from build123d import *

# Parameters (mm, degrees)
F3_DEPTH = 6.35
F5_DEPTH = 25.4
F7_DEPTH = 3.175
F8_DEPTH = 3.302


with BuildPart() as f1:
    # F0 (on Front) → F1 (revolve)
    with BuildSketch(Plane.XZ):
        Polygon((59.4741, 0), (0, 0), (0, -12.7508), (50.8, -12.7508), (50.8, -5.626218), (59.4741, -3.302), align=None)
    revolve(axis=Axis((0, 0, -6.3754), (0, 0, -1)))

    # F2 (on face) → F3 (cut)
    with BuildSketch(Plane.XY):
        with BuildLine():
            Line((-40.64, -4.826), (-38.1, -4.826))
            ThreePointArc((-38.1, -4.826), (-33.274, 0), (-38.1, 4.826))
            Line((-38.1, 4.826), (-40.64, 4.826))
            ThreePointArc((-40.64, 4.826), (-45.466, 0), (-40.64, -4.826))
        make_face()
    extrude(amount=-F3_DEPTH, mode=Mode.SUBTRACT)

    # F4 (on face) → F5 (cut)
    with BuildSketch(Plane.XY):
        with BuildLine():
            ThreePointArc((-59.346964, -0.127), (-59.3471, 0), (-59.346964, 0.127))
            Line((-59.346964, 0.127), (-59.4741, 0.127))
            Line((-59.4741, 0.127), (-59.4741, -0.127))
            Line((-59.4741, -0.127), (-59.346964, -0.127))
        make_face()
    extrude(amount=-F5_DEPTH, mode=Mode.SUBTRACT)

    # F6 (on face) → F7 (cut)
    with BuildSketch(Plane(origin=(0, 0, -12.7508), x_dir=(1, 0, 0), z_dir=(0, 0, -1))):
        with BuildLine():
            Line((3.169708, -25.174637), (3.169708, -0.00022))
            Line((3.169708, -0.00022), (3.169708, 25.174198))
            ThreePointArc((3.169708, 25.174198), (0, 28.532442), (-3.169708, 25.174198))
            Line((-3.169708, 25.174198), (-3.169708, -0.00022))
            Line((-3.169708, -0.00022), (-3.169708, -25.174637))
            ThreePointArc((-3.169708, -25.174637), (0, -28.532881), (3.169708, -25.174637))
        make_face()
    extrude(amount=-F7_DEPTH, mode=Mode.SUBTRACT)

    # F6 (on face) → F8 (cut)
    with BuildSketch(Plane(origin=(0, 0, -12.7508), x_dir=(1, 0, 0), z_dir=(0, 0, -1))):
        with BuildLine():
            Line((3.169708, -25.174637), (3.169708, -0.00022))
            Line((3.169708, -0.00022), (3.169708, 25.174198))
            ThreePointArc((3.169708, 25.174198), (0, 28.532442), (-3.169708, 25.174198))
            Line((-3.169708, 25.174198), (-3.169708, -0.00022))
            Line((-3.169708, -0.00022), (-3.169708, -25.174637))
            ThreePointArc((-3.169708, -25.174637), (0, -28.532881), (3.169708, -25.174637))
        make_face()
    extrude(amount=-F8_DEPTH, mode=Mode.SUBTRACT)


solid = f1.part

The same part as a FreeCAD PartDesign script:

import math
import FreeCAD as App
import Part
import Sketcher

V = App.Vector
Q = App.Units.Quantity

doc = App.newDocument("Part")
body = doc.addObject("PartDesign::Body", "Body")

# Sketch on XZ plane
sketch1 = body.newObject("Sketcher::SketchObject", "Sketch")
sketch1.AttachmentSupport = (doc.getObject("XZ_Plane"), [""])
sketch1.MapMode = "FlatFace"
sketch1.addGeometry([
    Part.LineSegment(V(59.5, 0, 0), V(0, 0, 0)),  # 0
    Part.LineSegment(V(0, 0, 0), V(0, -12.8, 0)),  # 1
    Part.LineSegment(V(0, -12.8, 0), V(50.8, -12.8, 0)),  # 2
    Part.LineSegment(V(50.8, -12.8, 0), V(50.8, -5.6, 0)),  # 3
    Part.LineSegment(V(50.8, -5.6, 0), V(59.5, -3.3, 0)),  # 4
    Part.LineSegment(V(59.5, -3.3, 0), V(59.5, 0, 0)),  # 5
], False)
sketch1.addConstraint([
    Sketcher.Constraint("Coincident", 0, 2, 1, 1),
    Sketcher.Constraint("Coincident", 1, 2, 2, 1),
    Sketcher.Constraint("Coincident", 2, 2, 3, 1),
    Sketcher.Constraint("Coincident", 3, 2, 4, 1),
    Sketcher.Constraint("Coincident", 4, 2, 5, 1),
    Sketcher.Constraint("Coincident", 5, 2, 0, 1),
    Sketcher.Constraint("Horizontal", 0),
    Sketcher.Constraint("Vertical", 1),
    Sketcher.Constraint("Horizontal", 2),
    Sketcher.Constraint("Vertical", 3),
    Sketcher.Constraint("Vertical", 5),
    Sketcher.Constraint("Coincident", 0, 2, -1, 1),
    Sketcher.Constraint("DistanceX", 2, 1, 2, 2, Q("2 in")),
    Sketcher.Constraint("Angle", 4, Q("14.999999 deg")),
    Sketcher.Constraint("DistanceY", 5, 1, 5, 2, Q("0.13 in")),
    Sketcher.Constraint("DistanceY", 1, 2, 1, 1, Q("0.502 in")),
    Sketcher.Constraint("DistanceX", 0, 2, 0, 1, Q("2.3415 in")),
])
revolution = body.newObject("PartDesign::Revolution", "Revolution")
revolution.Profile = sketch1
revolution.ReferenceAxis = (sketch1, ["V_Axis"])
revolution.Angle = 360

# Sketch on XY plane
sketch2 = body.newObject("Sketcher::SketchObject", "Sketch001")
sketch2.AttachmentSupport = (doc.getObject("XY_Plane"), [""])
sketch2.MapMode = "FlatFace"
sketch2.addGeometry([
    Part.LineSegment(V(-40.6, -4.8, 0), V(-38.1, -4.8, 0)),
    Part.ArcOfCircle(Part.Circle(V(-38.1, 0, 0), V(0, 0, 1), 4.8), math.radians(-90), math.radians(90)),
    Part.LineSegment(V(-38.1, 4.8, 0), V(-40.6, 4.8, 0)),
    Part.ArcOfCircle(Part.Circle(V(-40.6, 0, 0), V(0, 0, 1), 4.8), math.radians(90), math.radians(270)),
], False)
sketch2.addConstraint([
    Sketcher.Constraint("Tangent", 0, 2, 1, 1),
    Sketcher.Constraint("Tangent", 1, 2, 2, 1),
    Sketcher.Constraint("Tangent", 2, 2, 3, 1),
    Sketcher.Constraint("Tangent", 3, 2, 0, 1),
    Sketcher.Constraint("Horizontal", 0),
    Sketcher.Constraint("Horizontal", 2),
    Sketcher.Constraint("PointOnObject", 1, 3, -1),
    Sketcher.Constraint("Radius", 1, Q("0.19 in")),
    Sketcher.Constraint("DistanceX", 0, 1, 0, 2, Q("0.1 in")),
    Sketcher.Constraint("DistanceX", 1, 3, -1, 1, Q("1.5 in")),
])
pocket1 = body.newObject("PartDesign::Pocket", "Pocket")
pocket1.Profile = sketch2
pocket1.Length = Q("0.25 in")

# Sketch on XY plane
sketch3 = body.newObject("Sketcher::SketchObject", "Sketch002")
sketch3.AttachmentSupport = (doc.getObject("XY_Plane"), [""])
sketch3.MapMode = "FlatFace"
sketch3.addGeometry([
    Part.ArcOfCircle(Part.Circle(V(-0.05, 0, 0), V(0, 0, 1), 59.3), math.radians(179.88), math.radians(180.12)),
    Part.LineSegment(V(-59.35, 0.13, 0), V(-59.47, 0.13, 0)),
    Part.LineSegment(V(-59.47, 0.13, 0), V(-59.47, -0.13, 0)),
    Part.LineSegment(V(-59.47, -0.13, 0), V(-59.35, -0.13, 0)),
], False)
sketch3.addConstraint([
    Sketcher.Constraint("Coincident", 0, 1, 1, 1),
    Sketcher.Constraint("Coincident", 1, 2, 2, 1),
    Sketcher.Constraint("Coincident", 2, 2, 3, 1),
    Sketcher.Constraint("Coincident", 3, 2, 0, 2),
    Sketcher.Constraint("Horizontal", 1),
    Sketcher.Constraint("Vertical", 2),
    Sketcher.Constraint("Horizontal", 3),
    Sketcher.Constraint("Symmetric", 0, 1, 3, 2, -1),
    Sketcher.Constraint("DistanceY", 2, 2, 2, 1, Q("0.01 in")),
    Sketcher.Constraint("DistanceX", 1, 2, -1, 1, Q("2.3415 in")),
    Sketcher.Constraint("Radius", 0, 59.297862),
    Sketcher.Constraint("DistanceX", 1, 2, 1, 1, 0.127136),
])
pocket2 = body.newObject("PartDesign::Pocket", "Pocket001")
pocket2.Profile = sketch3
pocket2.Length = Q("1 in")

# Sketch on XY plane
sketch4 = body.newObject("Sketcher::SketchObject", "Sketch003")
sketch4.AttachmentSupport = (doc.getObject("XY_Plane"), [""])
sketch4.MapMode = "FlatFace"
sketch4.AttachmentOffset = App.Placement(V(0, 0, -0.502 * 25.4), App.Rotation())
sketch4.addGeometry([
    Part.LineSegment(V(3.2, 25.2, 0), V(3.2, -25.2, 0)),
    Part.ArcOfCircle(Part.Circle(V(0, -25.4, 0), V(0, 0, 1), 3.2), math.radians(177), math.radians(363)),
    Part.LineSegment(V(-3.2, -25.2, 0), V(-3.2, 25.2, 0)),
    Part.ArcOfCircle(Part.Circle(V(0, 25.4, 0), V(0, 0, 1), 3.2), math.radians(-3), math.radians(183)),
], False)
sketch4.addConstraint([
    Sketcher.Constraint("Coincident", 0, 2, 1, 2),
    Sketcher.Constraint("Coincident", 1, 1, 2, 1),
    Sketcher.Constraint("Coincident", 2, 2, 3, 2),
    Sketcher.Constraint("Coincident", 3, 1, 0, 1),
    Sketcher.Constraint("Vertical", 0),
    Sketcher.Constraint("Vertical", 2),
    Sketcher.Constraint("Equal", 1, 3),
    Sketcher.Constraint("Symmetric", 0, 2, 1, 1, -2),
    Sketcher.Constraint("PointOnObject", 3, 3, -2),
    Sketcher.Constraint("Radius", 1, Q("0.125 in")),
    Sketcher.Constraint("DistanceY", 0, 2, -1, 1, 25.174198),
    Sketcher.Constraint("DistanceY", 0, 2, 0, 1, 50.348835),
    Sketcher.Constraint("DistanceY", 1, 3, -1, 1, 25.357442),
])
pocket3 = body.newObject("PartDesign::Pocket", "Pocket002")
pocket3.Profile = sketch4
pocket3.Length = Q("0.125 in")
pocket3.Reversed = True

# Sketch on XY plane
sketch5 = body.newObject("Sketcher::SketchObject", "Sketch004")
sketch5.AttachmentSupport = (doc.getObject("XY_Plane"), [""])
sketch5.MapMode = "FlatFace"
sketch5.AttachmentOffset = App.Placement(V(0, 0, -0.502 * 25.4), App.Rotation())
sketch5.addGeometry([
    Part.LineSegment(V(3.2, 25.2, 0), V(3.2, -25.2, 0)),
    Part.ArcOfCircle(Part.Circle(V(0, -25.4, 0), V(0, 0, 1), 3.2), math.radians(177), math.radians(363)),
    Part.LineSegment(V(-3.2, -25.2, 0), V(-3.2, 25.2, 0)),
    Part.ArcOfCircle(Part.Circle(V(0, 25.4, 0), V(0, 0, 1), 3.2), math.radians(-3), math.radians(183)),
], False)
sketch5.addConstraint([
    Sketcher.Constraint("Coincident", 0, 2, 1, 2),
    Sketcher.Constraint("Coincident", 1, 1, 2, 1),
    Sketcher.Constraint("Coincident", 2, 2, 3, 2),
    Sketcher.Constraint("Coincident", 3, 1, 0, 1),
    Sketcher.Constraint("Vertical", 0),
    Sketcher.Constraint("Vertical", 2),
    Sketcher.Constraint("Equal", 1, 3),
    Sketcher.Constraint("Symmetric", 0, 2, 1, 1, -2),
    Sketcher.Constraint("PointOnObject", 3, 3, -2),
    Sketcher.Constraint("Radius", 1, Q("0.125 in")),
    Sketcher.Constraint("DistanceY", 0, 2, -1, 1, 25.174198),
    Sketcher.Constraint("DistanceY", 0, 2, 0, 1, 50.348835),
    Sketcher.Constraint("DistanceY", 1, 3, -1, 1, 25.357442),
])
pocket4 = body.newObject("PartDesign::Pocket", "Pocket003")
pocket4.Profile = sketch5
pocket4.Length = Q("0.13 in")
pocket4.Reversed = True

doc.recompute()
